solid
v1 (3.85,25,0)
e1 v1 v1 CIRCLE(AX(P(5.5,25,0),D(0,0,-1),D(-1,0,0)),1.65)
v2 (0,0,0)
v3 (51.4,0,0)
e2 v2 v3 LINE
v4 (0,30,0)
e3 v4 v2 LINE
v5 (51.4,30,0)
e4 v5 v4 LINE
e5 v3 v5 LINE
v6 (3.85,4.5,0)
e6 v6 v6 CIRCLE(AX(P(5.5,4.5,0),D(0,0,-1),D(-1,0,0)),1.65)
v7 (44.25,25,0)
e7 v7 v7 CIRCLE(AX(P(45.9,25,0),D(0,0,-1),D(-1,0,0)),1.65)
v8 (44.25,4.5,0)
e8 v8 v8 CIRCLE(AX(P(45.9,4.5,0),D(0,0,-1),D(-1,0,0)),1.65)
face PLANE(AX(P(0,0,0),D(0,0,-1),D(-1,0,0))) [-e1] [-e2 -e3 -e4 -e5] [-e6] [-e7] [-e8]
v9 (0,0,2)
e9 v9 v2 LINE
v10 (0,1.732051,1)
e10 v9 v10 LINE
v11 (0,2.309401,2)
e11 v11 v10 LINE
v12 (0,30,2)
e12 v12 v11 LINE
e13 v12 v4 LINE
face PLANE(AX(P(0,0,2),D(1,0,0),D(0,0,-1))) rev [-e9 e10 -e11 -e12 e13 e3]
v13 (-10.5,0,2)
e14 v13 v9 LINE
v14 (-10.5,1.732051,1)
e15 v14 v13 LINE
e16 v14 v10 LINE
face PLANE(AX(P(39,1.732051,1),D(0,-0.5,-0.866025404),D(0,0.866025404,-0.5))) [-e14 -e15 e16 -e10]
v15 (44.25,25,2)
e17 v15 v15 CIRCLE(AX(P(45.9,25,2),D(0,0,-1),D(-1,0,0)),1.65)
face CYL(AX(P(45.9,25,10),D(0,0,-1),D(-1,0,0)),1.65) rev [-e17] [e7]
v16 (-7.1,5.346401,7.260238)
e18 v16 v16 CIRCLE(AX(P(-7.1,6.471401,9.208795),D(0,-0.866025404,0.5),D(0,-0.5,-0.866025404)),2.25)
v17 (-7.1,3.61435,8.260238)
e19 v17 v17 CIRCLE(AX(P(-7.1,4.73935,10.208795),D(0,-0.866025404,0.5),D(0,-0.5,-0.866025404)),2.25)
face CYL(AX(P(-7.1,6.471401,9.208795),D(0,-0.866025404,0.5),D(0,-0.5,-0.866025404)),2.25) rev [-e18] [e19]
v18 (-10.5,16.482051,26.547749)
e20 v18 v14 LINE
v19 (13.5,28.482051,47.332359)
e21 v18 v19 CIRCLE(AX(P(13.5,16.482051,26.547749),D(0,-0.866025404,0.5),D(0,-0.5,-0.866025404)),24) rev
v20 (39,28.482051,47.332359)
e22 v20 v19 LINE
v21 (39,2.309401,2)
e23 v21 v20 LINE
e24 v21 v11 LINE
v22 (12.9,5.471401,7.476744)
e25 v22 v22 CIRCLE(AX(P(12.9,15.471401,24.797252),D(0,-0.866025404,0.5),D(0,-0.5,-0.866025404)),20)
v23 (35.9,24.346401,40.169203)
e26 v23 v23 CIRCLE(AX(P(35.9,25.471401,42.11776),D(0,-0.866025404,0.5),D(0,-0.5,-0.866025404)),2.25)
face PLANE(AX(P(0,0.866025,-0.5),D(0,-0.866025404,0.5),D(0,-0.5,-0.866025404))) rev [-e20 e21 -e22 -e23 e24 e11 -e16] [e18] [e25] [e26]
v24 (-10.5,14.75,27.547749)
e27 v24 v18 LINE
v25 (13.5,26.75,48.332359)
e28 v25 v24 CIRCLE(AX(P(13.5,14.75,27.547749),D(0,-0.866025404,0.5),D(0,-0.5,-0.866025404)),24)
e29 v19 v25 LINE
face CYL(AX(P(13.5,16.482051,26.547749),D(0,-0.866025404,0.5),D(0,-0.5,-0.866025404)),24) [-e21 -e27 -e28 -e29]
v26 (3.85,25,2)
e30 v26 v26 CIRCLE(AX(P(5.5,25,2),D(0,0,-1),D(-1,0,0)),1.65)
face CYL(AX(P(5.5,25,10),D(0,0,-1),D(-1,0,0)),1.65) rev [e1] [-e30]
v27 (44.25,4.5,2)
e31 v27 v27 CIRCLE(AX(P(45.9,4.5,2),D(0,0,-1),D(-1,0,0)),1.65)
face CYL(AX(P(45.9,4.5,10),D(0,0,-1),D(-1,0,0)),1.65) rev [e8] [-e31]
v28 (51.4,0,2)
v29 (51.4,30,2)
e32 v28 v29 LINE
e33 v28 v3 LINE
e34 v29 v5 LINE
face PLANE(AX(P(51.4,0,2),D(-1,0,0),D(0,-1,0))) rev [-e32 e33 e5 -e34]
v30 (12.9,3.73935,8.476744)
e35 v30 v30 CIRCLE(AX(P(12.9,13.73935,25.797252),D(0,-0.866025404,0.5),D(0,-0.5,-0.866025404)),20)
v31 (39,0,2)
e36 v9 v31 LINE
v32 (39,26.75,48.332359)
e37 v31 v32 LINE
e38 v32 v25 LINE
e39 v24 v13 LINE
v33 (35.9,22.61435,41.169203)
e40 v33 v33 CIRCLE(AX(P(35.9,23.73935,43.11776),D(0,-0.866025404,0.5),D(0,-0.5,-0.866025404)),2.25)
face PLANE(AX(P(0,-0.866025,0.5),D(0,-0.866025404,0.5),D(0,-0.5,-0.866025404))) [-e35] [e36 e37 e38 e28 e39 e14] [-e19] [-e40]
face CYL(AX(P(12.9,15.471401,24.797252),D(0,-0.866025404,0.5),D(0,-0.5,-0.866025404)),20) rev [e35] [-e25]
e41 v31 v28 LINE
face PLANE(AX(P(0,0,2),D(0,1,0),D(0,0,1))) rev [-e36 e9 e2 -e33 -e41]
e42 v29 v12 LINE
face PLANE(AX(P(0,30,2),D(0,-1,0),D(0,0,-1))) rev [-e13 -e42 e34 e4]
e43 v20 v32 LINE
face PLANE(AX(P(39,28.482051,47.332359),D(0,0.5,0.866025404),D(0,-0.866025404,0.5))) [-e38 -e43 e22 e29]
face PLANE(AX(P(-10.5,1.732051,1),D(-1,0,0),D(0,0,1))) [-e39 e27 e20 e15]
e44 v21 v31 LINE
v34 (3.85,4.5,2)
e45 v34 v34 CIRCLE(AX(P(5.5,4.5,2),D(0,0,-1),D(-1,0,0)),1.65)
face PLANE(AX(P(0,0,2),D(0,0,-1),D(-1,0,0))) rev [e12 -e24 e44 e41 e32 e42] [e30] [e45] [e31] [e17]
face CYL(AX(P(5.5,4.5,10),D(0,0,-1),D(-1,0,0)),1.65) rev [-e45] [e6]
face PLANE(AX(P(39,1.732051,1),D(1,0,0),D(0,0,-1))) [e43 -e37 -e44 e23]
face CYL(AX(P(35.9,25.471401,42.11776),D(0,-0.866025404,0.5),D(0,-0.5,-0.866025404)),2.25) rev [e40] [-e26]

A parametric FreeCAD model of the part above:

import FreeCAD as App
import Part
import Sketcher
Q = App.Units.Quantity


def edges_at(feature, points):
    """Names of the edges that pass closest to the given points."""
    edges = feature.Shape.Edges
    near = lambda p: min(range(len(edges)), key=lambda i: edges[i].distToShape(Part.Vertex(*p))[0])
    return sorted({f"Edge{near(p) + 1}" for p in points})

doc = App.newDocument("Part")
body = doc.addObject("PartDesign::Body", "Body")

sketch1 = doc.addObject("Sketcher::SketchObject", "Sketch")
body.addObject(sketch1)
sketch1.AttachmentSupport = (doc.XY_Plane, [""])
sketch1.MapMode = "FlatFace"
sketch1.addGeometry([
    Part.LineSegment(App.Vector(0, 30, 0), App.Vector(0, 0, 0)),
    Part.LineSegment(App.Vector(0, 0, 0), App.Vector(51.4, 0, 0)),
    Part.LineSegment(App.Vector(51.4, 0, 0), App.Vector(51.4, 30, 0)),
    Part.LineSegment(App.Vector(51.4, 30, 0), App.Vector(0, 30, 0)),
], False)
sketch1.addConstraint([
    Sketcher.Constraint("Coincident", 0, 2, 1, 1),
    Sketcher.Constraint("Coincident", 1, 2, 2, 1),
    Sketcher.Constraint("Coincident", 2, 2, 3, 1),
    Sketcher.Constraint("Coincident", 3, 2, 0, 1),
    Sketcher.Constraint("Vertical", 0),
    Sketcher.Constraint("Horizontal", 1),
    Sketcher.Constraint("Vertical", 2),
    Sketcher.Constraint("Horizontal", 3),
    Sketcher.Constraint("Coincident", 0, 2, -1, 1),
    Sketcher.Constraint("DistanceY", 0, 2, 0, 1, Q("30 mm")),
    Sketcher.Constraint("DistanceX", 1, 1, 1, 2, Q("51.4 mm")),
])
pad1 = doc.addObject("PartDesign::Pad", "Pad")
body.addObject(pad1)
pad1.Profile = sketch1
pad1.Length = 2

sketch2 = doc.addObject("Sketcher::SketchObject", "Sketch001")
body.addObject(sketch2)
sketch2.AttachmentSupport = (doc.XY_Plane, [""])
sketch2.MapMode = "FlatFace"
sketch2.addGeometry([
    Part.Circle(App.Vector(45.9, 25, 0), App.Vector(0, 0, 1), 1.65),
    Part.Circle(App.Vector(5.5, 25, 0), App.Vector(0, 0, 1), 1.65),
    Part.Circle(App.Vector(5.5, 4.5, 0), App.Vector(0, 0, 1), 1.65),
    Part.Circle(App.Vector(45.9, 4.5, 0), App.Vector(0, 0, 1), 1.65),
], False)
sketch2.addConstraint([
    Sketcher.Constraint("Equal", 0, 1),
    Sketcher.Constraint("Equal", 1, 2),
    Sketcher.Constraint("Equal", 2, 3),
    Sketcher.Constraint("Horizontal", 0, 3, 1, 3),
    Sketcher.Constraint("Horizontal", 2, 3, 3, 3),
    Sketcher.Constraint("Vertical", 1, 3, 2, 3),
    Sketcher.Constraint("Vertical", 0, 3, 3, 3),
    Sketcher.Constraint("Diameter", 0, Q("3.3 mm")),
    Sketcher.Constraint("DistanceY", -1, 1, 0, 3, Q("25 mm")),
    Sketcher.Constraint("DistanceX", -1, 1, 0, 3, Q("45.9 mm")),
    Sketcher.Constraint("DistanceX", -1, 1, 1, 3, Q("5.5 mm")),
    Sketcher.Constraint("DistanceY", -1, 1, 2, 3, Q("4.5 mm")),
])
pocket1 = doc.addObject("PartDesign::Pocket", "Pocket")
body.addObject(pocket1)
pocket1.Profile = sketch2
pocket1.Length = 10
pocket1.Reversed = True

sketch3 = doc.addObject("Sketcher::SketchObject", "Sketch002")
body.addObject(sketch3)
sketch3.Placement = App.Placement(App.Vector(0, -0.866025, 0.5), App.Rotation(App.Vector(1, 0, 0), App.Vector(0, 0.5, 0.866025404), App.Vector(0, -0.866025404, 0.5), "ZXY"))
sketch3.addGeometry([
    Part.LineSegment(App.Vector(-10.5, 55.232051, 0), App.Vector(-10.5, 1.732051, 0)),
    Part.LineSegment(App.Vector(-10.5, 1.732051, 0), App.Vector(39, 1.732051, 0)),
    Part.LineSegment(App.Vector(39, 1.732051, 0), App.Vector(39, 55.232051, 0)),
    Part.LineSegment(App.Vector(39, 55.232051, 0), App.Vector(-10.5, 55.232051, 0)),
], False)
sketch3.addConstraint([
    Sketcher.Constraint("Coincident", 0, 2, 1, 1),
    Sketcher.Constraint("Coincident", 1, 2, 2, 1),
    Sketcher.Constraint("Coincident", 2, 2, 3, 1),
    Sketcher.Constraint("Coincident", 3, 2, 0, 1),
    Sketcher.Constraint("Vertical", 0),
    Sketcher.Constraint("Horizontal", 1),
    Sketcher.Constraint("Vertical", 2),
    Sketcher.Constraint("Horizontal", 3),
    Sketcher.Constraint("DistanceX", 1, 1, 1, 2, Q("49.5 mm")),
    Sketcher.Constraint("DistanceY", 0, 2, 0, 1, Q("53.5 mm")),
    Sketcher.Constraint("DistanceX", -1, 1, 1, 2, Q("39 mm")),
    Sketcher.Constraint("DistanceY", -1, 1, 0, 2, Q("1.732051 mm")),
])
pad2 = doc.addObject("PartDesign::Pad", "Pad001")
body.addObject(pad2)
pad2.Profile = sketch3
pad2.Length = 2
pad2.Reversed = True
doc.recompute()

fillet = doc.addObject("PartDesign::Fillet", "Fillet")
body.addObject(fillet)
fillet.Base = (pad2, edges_at(pad2, [(-10.5, 27.616, 47.832)]))
fillet.Radius = 24

sketch4 = doc.addObject("Sketcher::SketchObject", "Sketch003")
body.addObject(sketch4)
sketch4.Placement = App.Placement(App.Vector(0, -0.866025, 0.5), App.Rotation(App.Vector(1, 0, 0), App.Vector(0, 0.5, 0.866025404), App.Vector(0, -0.866025404, 0.5), "ZXY"))
sketch4.addGeometry([
    Part.Circle(App.Vector(35.9, 49.210751, 0), App.Vector(0, 0, 1), 2.25),
    Part.Circle(App.Vector(-7.1, 11.210751, 0), App.Vector(0, 0, 1), 2.25),
], False)
sketch4.addConstraint([
    Sketcher.Constraint("Equal", 0, 1),
    Sketcher.Constraint("Diameter", 0, Q("4.5 mm")),
    Sketcher.Constraint("DistanceX", 1, 3, 0, 3, Q("43 mm")),
    Sketcher.Constraint("DistanceY", 1, 3, 0, 3, Q("38 mm")),
    Sketcher.Constraint("DistanceX", -1, 1, 0, 3, Q("35.9 mm")),
    Sketcher.Constraint("DistanceY", -1, 1, 0, 3, Q("49.210751 mm")),
])
pocket2 = doc.addObject("PartDesign::Pocket", "Pocket001")
body.addObject(pocket2)
pocket2.Profile = sketch4
pocket2.Length = 2

sketch5 = doc.addObject("Sketcher::SketchObject", "Sketch004")
body.addObject(sketch5)
sketch5.Placement = App.Placement(App.Vector(0, -0.866025, 0.5), App.Rotation(App.Vector(1, 0, 0), App.Vector(0, 0.5, 0.866025404), App.Vector(0, -0.866025404, 0.5), "ZXY"))
sketch5.addGeometry(Part.Circle(App.Vector(12.9, 29.210751, 0), App.Vector(0, 0, 1), 20), False)
sketch5.addConstraint([
    Sketcher.Constraint("Diameter", 0, Q("40 mm")),
    Sketcher.Constraint("DistanceX", -1, 1, 0, 3, Q("12.9 mm")),
    Sketcher.Constraint("DistanceY", -1, 1, 0, 3, Q("29.210751 mm")),
])
pocket3 = doc.addObject("PartDesign::Pocket", "Pocket002")
body.addObject(pocket3)
pocket3.Profile = sketch5
pocket3.Length = 2

doc.recompute()
